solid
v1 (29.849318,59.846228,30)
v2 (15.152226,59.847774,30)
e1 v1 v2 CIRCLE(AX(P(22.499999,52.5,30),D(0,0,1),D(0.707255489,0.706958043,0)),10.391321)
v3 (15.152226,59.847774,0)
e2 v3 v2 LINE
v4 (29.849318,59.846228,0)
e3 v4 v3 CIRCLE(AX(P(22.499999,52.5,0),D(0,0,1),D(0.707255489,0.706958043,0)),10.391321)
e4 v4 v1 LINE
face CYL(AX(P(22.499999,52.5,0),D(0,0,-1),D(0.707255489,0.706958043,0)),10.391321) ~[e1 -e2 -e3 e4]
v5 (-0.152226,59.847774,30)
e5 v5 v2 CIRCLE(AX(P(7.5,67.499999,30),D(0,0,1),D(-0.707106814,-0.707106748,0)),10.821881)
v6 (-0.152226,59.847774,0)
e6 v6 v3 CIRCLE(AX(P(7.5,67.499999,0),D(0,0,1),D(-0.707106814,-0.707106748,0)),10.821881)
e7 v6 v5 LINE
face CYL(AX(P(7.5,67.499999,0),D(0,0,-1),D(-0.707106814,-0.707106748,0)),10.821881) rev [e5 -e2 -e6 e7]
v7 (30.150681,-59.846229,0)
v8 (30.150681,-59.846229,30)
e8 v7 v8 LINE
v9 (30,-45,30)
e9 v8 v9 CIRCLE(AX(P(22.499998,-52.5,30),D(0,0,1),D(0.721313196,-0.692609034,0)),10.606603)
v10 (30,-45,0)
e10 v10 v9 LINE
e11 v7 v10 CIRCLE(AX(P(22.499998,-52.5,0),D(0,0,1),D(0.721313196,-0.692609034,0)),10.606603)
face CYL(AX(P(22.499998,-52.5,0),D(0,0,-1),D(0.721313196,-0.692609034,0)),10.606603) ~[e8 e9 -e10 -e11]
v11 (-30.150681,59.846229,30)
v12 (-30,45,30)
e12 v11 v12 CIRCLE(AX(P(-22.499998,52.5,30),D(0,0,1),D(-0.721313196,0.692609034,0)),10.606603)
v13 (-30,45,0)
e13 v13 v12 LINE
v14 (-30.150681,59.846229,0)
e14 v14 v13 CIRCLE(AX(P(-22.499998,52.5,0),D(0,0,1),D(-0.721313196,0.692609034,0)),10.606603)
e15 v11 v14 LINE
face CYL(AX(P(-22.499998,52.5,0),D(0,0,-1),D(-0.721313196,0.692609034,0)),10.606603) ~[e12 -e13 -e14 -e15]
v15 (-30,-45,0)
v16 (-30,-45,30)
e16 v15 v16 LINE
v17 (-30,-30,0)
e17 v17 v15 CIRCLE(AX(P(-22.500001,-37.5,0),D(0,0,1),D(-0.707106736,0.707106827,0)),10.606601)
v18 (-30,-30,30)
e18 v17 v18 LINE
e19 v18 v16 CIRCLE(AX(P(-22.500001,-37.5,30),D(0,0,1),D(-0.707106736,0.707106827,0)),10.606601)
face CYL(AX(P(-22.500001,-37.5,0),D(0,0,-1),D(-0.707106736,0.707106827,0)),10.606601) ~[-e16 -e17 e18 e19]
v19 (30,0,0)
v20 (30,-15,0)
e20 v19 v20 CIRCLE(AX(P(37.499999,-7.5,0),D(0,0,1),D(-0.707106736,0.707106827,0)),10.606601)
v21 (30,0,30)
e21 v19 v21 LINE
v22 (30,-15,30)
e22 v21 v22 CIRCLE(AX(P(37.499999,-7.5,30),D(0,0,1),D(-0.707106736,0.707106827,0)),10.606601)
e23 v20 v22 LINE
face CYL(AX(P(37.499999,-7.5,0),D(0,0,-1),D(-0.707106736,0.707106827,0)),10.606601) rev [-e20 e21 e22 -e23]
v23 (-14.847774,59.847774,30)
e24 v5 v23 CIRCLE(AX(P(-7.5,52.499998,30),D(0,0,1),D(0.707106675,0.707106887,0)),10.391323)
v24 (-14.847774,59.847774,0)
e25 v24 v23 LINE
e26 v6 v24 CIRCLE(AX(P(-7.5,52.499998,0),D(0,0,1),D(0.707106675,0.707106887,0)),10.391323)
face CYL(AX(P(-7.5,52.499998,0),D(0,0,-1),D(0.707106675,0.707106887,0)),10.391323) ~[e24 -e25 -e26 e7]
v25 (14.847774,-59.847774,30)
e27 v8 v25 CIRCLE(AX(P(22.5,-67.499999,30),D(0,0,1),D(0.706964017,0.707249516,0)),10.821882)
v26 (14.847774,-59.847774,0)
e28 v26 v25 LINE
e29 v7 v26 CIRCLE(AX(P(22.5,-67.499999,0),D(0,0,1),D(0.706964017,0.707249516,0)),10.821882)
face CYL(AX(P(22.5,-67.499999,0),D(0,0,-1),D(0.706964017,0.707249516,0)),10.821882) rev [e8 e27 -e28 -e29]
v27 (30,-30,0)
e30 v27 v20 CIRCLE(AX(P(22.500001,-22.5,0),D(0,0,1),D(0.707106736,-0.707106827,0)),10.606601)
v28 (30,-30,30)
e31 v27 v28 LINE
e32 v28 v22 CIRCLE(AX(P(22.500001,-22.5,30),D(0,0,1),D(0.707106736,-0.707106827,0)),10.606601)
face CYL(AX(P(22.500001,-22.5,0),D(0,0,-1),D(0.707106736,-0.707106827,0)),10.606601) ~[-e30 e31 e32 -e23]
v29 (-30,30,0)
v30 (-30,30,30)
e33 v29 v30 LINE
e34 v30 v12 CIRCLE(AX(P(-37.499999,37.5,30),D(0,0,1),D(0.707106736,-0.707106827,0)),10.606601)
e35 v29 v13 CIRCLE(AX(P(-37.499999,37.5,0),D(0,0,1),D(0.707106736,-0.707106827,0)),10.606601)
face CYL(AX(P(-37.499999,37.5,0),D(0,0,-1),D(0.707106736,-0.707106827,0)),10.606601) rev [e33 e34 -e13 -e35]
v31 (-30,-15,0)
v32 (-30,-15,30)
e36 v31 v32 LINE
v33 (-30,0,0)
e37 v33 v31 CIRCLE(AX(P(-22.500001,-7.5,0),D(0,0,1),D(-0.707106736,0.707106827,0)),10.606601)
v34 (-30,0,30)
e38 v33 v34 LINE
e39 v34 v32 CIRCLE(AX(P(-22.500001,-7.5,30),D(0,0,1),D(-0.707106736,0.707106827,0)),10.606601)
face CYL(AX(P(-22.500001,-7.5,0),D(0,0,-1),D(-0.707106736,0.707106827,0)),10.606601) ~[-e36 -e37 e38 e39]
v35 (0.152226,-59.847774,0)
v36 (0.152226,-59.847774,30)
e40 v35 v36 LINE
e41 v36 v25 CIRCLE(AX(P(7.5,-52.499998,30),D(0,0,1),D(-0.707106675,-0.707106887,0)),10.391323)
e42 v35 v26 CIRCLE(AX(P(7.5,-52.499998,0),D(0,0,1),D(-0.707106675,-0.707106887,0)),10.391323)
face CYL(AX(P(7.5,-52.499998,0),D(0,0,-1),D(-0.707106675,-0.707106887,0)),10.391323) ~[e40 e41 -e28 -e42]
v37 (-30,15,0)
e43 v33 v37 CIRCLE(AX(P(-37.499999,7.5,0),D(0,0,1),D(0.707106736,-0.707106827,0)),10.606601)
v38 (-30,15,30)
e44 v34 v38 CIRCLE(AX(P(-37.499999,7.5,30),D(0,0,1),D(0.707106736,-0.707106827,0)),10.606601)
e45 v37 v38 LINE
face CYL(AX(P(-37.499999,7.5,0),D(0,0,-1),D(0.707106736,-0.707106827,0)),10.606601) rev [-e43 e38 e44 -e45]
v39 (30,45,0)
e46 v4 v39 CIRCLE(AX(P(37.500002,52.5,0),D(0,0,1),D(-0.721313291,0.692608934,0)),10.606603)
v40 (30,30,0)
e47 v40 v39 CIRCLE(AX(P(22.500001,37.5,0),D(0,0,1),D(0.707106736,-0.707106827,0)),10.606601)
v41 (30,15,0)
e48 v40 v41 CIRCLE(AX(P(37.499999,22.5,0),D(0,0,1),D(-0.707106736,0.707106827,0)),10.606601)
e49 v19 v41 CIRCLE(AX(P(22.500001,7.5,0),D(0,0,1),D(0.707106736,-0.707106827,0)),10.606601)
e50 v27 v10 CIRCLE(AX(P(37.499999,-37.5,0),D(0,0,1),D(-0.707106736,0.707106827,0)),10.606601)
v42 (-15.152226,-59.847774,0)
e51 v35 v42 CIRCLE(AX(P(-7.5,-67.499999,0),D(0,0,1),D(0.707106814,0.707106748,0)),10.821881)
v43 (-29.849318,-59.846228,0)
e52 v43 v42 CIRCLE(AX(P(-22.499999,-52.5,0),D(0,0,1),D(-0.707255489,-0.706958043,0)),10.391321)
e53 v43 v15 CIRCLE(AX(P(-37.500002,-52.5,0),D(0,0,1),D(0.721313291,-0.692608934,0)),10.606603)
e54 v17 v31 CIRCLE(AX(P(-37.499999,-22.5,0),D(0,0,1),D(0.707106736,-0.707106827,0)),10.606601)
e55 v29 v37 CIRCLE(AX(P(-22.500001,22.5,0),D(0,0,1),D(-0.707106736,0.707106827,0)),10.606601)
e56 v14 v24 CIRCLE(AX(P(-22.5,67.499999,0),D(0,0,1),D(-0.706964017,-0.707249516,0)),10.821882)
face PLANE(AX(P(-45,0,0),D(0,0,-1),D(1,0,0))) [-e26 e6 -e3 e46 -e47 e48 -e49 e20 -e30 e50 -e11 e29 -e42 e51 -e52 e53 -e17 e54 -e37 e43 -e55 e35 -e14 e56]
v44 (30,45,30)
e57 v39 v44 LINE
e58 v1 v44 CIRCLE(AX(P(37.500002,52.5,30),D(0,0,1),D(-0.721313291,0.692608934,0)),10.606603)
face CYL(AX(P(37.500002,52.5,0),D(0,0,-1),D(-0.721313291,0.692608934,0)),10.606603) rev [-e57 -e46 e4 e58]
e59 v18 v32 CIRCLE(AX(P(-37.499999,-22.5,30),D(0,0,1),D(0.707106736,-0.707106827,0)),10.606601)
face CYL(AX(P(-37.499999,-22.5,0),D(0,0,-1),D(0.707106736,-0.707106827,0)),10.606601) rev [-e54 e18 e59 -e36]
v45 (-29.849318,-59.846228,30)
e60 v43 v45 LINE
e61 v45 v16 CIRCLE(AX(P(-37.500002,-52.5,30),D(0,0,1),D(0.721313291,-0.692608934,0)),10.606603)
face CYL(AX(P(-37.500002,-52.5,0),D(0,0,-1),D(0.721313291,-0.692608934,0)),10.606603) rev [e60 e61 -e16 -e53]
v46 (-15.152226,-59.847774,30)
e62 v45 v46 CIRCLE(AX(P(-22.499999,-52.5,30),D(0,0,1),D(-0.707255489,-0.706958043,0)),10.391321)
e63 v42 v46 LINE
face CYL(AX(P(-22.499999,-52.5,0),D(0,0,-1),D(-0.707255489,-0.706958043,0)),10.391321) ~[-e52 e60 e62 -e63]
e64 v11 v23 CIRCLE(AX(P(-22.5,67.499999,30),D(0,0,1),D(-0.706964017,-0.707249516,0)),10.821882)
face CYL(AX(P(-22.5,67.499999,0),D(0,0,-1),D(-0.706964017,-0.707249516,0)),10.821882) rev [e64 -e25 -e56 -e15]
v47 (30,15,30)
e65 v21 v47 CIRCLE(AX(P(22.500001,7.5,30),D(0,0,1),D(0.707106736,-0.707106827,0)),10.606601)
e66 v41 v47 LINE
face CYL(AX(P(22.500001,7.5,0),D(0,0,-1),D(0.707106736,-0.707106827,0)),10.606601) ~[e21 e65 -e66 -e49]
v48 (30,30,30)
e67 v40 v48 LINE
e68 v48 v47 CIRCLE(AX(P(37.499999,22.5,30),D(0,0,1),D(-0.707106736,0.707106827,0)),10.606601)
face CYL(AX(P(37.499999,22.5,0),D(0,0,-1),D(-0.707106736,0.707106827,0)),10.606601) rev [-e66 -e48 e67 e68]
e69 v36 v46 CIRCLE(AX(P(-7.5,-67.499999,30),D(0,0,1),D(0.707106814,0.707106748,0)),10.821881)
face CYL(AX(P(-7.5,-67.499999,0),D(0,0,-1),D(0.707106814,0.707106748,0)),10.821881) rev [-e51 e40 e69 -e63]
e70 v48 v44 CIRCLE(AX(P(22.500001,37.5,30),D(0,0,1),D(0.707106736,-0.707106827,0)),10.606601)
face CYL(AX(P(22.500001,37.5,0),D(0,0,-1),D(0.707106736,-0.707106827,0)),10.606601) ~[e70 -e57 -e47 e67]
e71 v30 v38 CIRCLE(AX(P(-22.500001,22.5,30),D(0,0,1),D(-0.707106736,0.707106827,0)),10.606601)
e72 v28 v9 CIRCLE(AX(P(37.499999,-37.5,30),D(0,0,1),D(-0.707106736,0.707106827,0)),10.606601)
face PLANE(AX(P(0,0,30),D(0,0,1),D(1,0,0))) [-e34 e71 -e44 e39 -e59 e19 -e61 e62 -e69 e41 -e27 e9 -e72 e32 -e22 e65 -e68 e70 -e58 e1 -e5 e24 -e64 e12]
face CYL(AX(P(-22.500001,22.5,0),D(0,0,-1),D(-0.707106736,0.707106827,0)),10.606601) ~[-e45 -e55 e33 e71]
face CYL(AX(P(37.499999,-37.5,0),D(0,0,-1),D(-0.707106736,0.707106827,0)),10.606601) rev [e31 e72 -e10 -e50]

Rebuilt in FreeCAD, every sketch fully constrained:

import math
import FreeCAD as App
import Part
import Sketcher
from FreeCAD import Vector


def add_polygon(sketch, points):
    """Adds a closed chain of lines whose ends are joined by coincident constraints."""
    first, n = sketch.GeometryCount, len(points)
    for a, b in zip(points, points[1:] + points[:1]):
        sketch.addGeometry(Part.LineSegment(App.Vector(*a, 0), App.Vector(*b, 0)), False)
    for i in range(n):
        sketch.addConstraint(Sketcher.Constraint("Coincident", first + i, 2, first + (i + 1) % n, 1))

doc = App.newDocument("Part")
body = doc.addObject("PartDesign::Body", "Body")

# Sketch on XZ plane
sketch1 = body.newObject("Sketcher::SketchObject", "Sketch")
sketch1.AttachmentSupport = (doc.getObject("XZ_Plane"), [""])
sketch1.MapMode = "FlatFace"
add_polygon(sketch1, [(-45, 2.6), (-45, 0), (45, 0), (45, 2.6)])  # lines 0-3
sketch1.addConstraint([
    Sketcher.Constraint("Vertical", 0),
    Sketcher.Constraint("Horizontal", 1),
    Sketcher.Constraint("Vertical", 2),
    Sketcher.Constraint("Horizontal", 3),
    Sketcher.Constraint("Symmetric", 0, 2, 1, 2, -1, 1),
    Sketcher.Constraint("DistanceX", 1, 1, 1, 2, 90.0),
    Sketcher.Constraint("DistanceY", 0, 2, 0, 1, 2.6),
])
pad1 = body.newObject("PartDesign::Pad", "Pad")
pad1.Profile = sketch1
pad1.Length = 130
pad1.Midplane = True

# Sketch on XY plane
sketch2 = body.newObject("Sketcher::SketchObject", "Sketch001")
sketch2.AttachmentSupport = (doc.getObject("XY_Plane"), [""])
sketch2.MapMode = "FlatFace"
sketch2.addGeometry([
    Part.ArcOfCircle(Part.Circle(Vector(-22, 68, 0), Vector(0, 0, 1), 12), math.radians(-128), math.radians(-52)),  # 0
    Part.ArcOfCircle(Part.Circle(Vector(-23, 52, 0), Vector(0, 0, 1), 9), math.radians(144), math.radians(216)),  # 1
    Part.ArcOfCircle(Part.Circle(Vector(-22, 37, 0), Vector(0, 0, 1), 12), math.radians(52), math.radians(128)),  # 2
    Part.ArcOfCircle(Part.Circle(Vector(-22, 52, 0), Vector(0, 0, 1), 9), math.radians(-36), math.radians(36)),  # 3
    Part.ArcOfCircle(Part.Circle(Vector(-8, 53, 0), Vector(0, 0, 1), 9), math.radians(54), math.radians(126)),  # 4
    Part.ArcOfCircle(Part.Circle(Vector(-23, 52, 0), Vector(0, 0, 1), 12), math.radians(-38), math.radians(38)),  # 5
    Part.ArcOfCircle(Part.Circle(Vector(-8, 52, 0), Vector(0, 0, 1), 9), math.radians(-126), math.radians(-54)),  # 6
    Part.ArcOfCircle(Part.Circle(Vector(8, 52, 0), Vector(0, 0, 1), 12), math.radians(142), math.radians(218)),  # 7
    Part.ArcOfCircle(Part.Circle(Vector(-22, 38, 0), Vector(0, 0, 1), 9), math.radians(54), math.radians(126)),  # 8
    Part.ArcOfCircle(Part.Circle(Vector(-38, 38, 0), Vector(0, 0, 1), 12), math.radians(-38), math.radians(38)),  # 9
    Part.ArcOfCircle(Part.Circle(Vector(-22, 37, 0), Vector(0, 0, 1), 9), math.radians(-126), math.radians(-54)),  # 10
    Part.ArcOfCircle(Part.Circle(Vector(-7, 38, 0), Vector(0, 0, 1), 12), math.radians(142), math.radians(218)),  # 11
    Part.ArcOfCircle(Part.Circle(Vector(-8, 38, 0), Vector(0, 0, 1), 9), math.radians(144), math.radians(216)),  # 12
    Part.ArcOfCircle(Part.Circle(Vector(-8, 22, 0), Vector(0, 0, 1), 12), math.radians(52), math.radians(128)),  # 13
    Part.ArcOfCircle(Part.Circle(Vector(-7, 38, 0), Vector(0, 0, 1), 9), math.radians(-36), math.radians(36)),  # 14
    Part.ArcOfCircle(Part.Circle(Vector(-8, 53, 0), Vector(0, 0, 1), 12), math.radians(-128), math.radians(-52)),  # 15
], False)
sketch2.addConstraint([
    Sketcher.Constraint("Coincident", 0, 1, 1, 1),
    Sketcher.Constraint("Coincident", 1, 2, 2, 2),
    Sketcher.Constraint("Coincident", 2, 1, 3, 1),
    Sketcher.Constraint("Coincident", 3, 2, 0, 2),
    Sketcher.Constraint("Coincident", 4, 2, 5, 2),
    Sketcher.Constraint("Coincident", 5, 1, 6, 1),
    Sketcher.Constraint("Coincident", 6, 2, 7, 2),
    Sketcher.Constraint("Coincident", 7, 1, 4, 1),
    Sketcher.Constraint("Coincident", 8, 2, 9, 2),
    Sketcher.Constraint("Coincident", 9, 1, 10, 1),
    Sketcher.Constraint("Coincident", 10, 2, 11, 2),
    Sketcher.Constraint("Coincident", 11, 1, 8, 1),
    Sketcher.Constraint("Coincident", 12, 2, 13, 2),
    Sketcher.Constraint("Coincident", 13, 1, 14, 1),
    Sketcher.Constraint("Coincident", 14, 2, 15, 2),
    Sketcher.Constraint("Coincident", 15, 1, 12, 1),
    Sketcher.Constraint("Coincident", 3, 3, 1, 3),
    Sketcher.Constraint("Coincident", 5, 3, 1, 3),
    Sketcher.Constraint("Coincident", 6, 3, 4, 3),
    Sketcher.Constraint("Coincident", 8, 3, 2, 3),
    Sketcher.Constraint("Coincident", 10, 3, 2, 3),
    Sketcher.Constraint("Coincident", 12, 3, 11, 3),
    Sketcher.Constraint("Coincident", 14, 3, 11, 3),
    Sketcher.Constraint("Coincident", 15, 3, 4, 3),
    Sketcher.Constraint("Equal", 0, 2),
    Sketcher.Constraint("Equal", 1, 3),
    Sketcher.Constraint("Equal", 3, 4),
    Sketcher.Constraint("Equal", 2, 5),
    Sketcher.Constraint("Equal", 4, 6),
    Sketcher.Constraint("Equal", 5, 7),
    Sketcher.Constraint("Equal", 6, 8),
    Sketcher.Constraint("Equal", 7, 9),
    Sketcher.Constraint("Equal", 8, 10),
    Sketcher.Constraint("Equal", 9, 11),
    Sketcher.Constraint("Equal", 10, 12),
    Sketcher.Constraint("Equal", 11, 13),
    Sketcher.Constraint("Equal", 12, 14),
    Sketcher.Constraint("Equal", 13, 15),
    Sketcher.Constraint("Symmetric", 4, 3, 7, 3, -2),
    Sketcher.Constraint("PointOnObject", 13, 1, -2),
    Sketcher.Constraint("PointOnObject", 14, 2, -2),
    Sketcher.Constraint("Horizontal", 3, 3, 4, 3),
    Sketcher.Constraint("Horizontal", 8, 3, 9, 3),
    Sketcher.Constraint("Horizontal", 10, 3, 11, 3),
    Sketcher.Constraint("Horizontal", 1, 2, 2, 1),
    Sketcher.Constraint("Horizontal", 0, 1, 3, 2),
    Sketcher.Constraint("Horizontal", 5, 1, 6, 2),
    Sketcher.Constraint("Horizontal", 6, 2, 8, 2),
    Sketcher.Constraint("Horizontal", 9, 1, 10, 2),
    Sketcher.Constraint("Horizontal", 12, 2, 13, 1),
    Sketcher.Constraint("Vertical", 6, 3, 11, 3),
    Sketcher.Constraint("Vertical", 0, 1, 1, 2),
    Sketcher.Constraint("DistanceX", 0, 1, -1, 1, 30.0),
    Sketcher.Constraint("DistanceY", -1, 1, 4, 2, 60.0),
    Sketcher.Constraint("Radius", 1, 9.229312),
])
pocket1 = body.newObject("PartDesign::Pocket", "Pocket")
pocket1.Profile = sketch2
pocket1.Type = "ThroughAll"
pocket1.Midplane = True

# Sketch on XY plane
sketch3 = body.newObject("Sketcher::SketchObject", "Sketch002")
sketch3.AttachmentSupport = (doc.getObject("XY_Plane"), [""])
sketch3.MapMode = "FlatFace"
sketch3.addGeometry([
    Part.ArcOfCircle(Part.Circle(Vector(8, 68, 0), Vector(0, 0, 1), 12), math.radians(-128), math.radians(-52)),  # 0
    Part.ArcOfCircle(Part.Circle(Vector(7, 52, 0), Vector(0, 0, 1), 9), math.radians(144), math.radians(216)),  # 1
    Part.ArcOfCircle(Part.Circle(Vector(8, 37, 0), Vector(0, 0, 1), 12), math.radians(52), math.radians(128)),  # 2
    Part.ArcOfCircle(Part.Circle(Vector(8, 52, 0), Vector(0, 0, 1), 9), math.radians(-36), math.radians(36)),  # 3
    Part.ArcOfCircle(Part.Circle(Vector(22, 53, 0), Vector(0, 0, 1), 9), math.radians(54), math.radians(126)),  # 4
    Part.ArcOfCircle(Part.Circle(Vector(7, 52, 0), Vector(0, 0, 1), 12), math.radians(-38), math.radians(38)),  # 5
    Part.ArcOfCircle(Part.Circle(Vector(22, 52, 0), Vector(0, 0, 1), 9), math.radians(-126), math.radians(-54)),  # 6
    Part.ArcOfCircle(Part.Circle(Vector(38, 52, 0), Vector(0, 0, 1), 12), math.radians(142), math.radians(218)),  # 7
    Part.ArcOfCircle(Part.Circle(Vector(8, 38, 0), Vector(0, 0, 1), 9), math.radians(54), math.radians(126)),  # 8
    Part.ArcOfCircle(Part.Circle(Vector(-8, 38, 0), Vector(0, 0, 1), 12), math.radians(-38), math.radians(38)),  # 9
    Part.ArcOfCircle(Part.Circle(Vector(8, 37, 0), Vector(0, 0, 1), 9), math.radians(-126), math.radians(-54)),  # 10
    Part.ArcOfCircle(Part.Circle(Vector(23, 38, 0), Vector(0, 0, 1), 12), math.radians(142), math.radians(218)),  # 11
    Part.ArcOfCircle(Part.Circle(Vector(22, 38, 0), Vector(0, 0, 1), 9), math.radians(144), math.radians(216)),  # 12
    Part.ArcOfCircle(Part.Circle(Vector(22, 22, 0), Vector(0, 0, 1), 12), math.radians(52), math.radians(128)),  # 13
    Part.ArcOfCircle(Part.Circle(Vector(23, 38, 0), Vector(0, 0, 1), 9), math.radians(-36), math.radians(36)),  # 14
    Part.ArcOfCircle(Part.Circle(Vector(22, 53, 0), Vector(0, 0, 1), 12), math.radians(-128), math.radians(-52)),  # 15
], False)
sketch3.addConstraint([
    Sketcher.Constraint("Coincident", 0, 1, 1, 1),
    Sketcher.Constraint("Coincident", 1, 2, 2, 2),
    Sketcher.Constraint("Coincident", 2, 1, 3, 1),
    Sketcher.Constraint("Coincident", 3, 2, 0, 2),
    Sketcher.Constraint("Coincident", 4, 2, 5, 2),
    Sketcher.Constraint("Coincident", 5, 1, 6, 1),
    Sketcher.Constraint("Coincident", 6, 2, 7, 2),
    Sketcher.Constraint("Coincident", 7, 1, 4, 1),
    Sketcher.Constraint("Coincident", 8, 2, 9, 2),
    Sketcher.Constraint("Coincident", 9, 1, 10, 1),
    Sketcher.Constraint("Coincident", 10, 2, 11, 2),
    Sketcher.Constraint("Coincident", 11, 1, 8, 1),
    Sketcher.Constraint("Coincident", 12, 2, 13, 2),
    Sketcher.Constraint("Coincident", 13, 1, 14, 1),
    Sketcher.Constraint("Coincident", 14, 2, 15, 2),
    Sketcher.Constraint("Coincident", 15, 1, 12, 1),
    Sketcher.Constraint("Coincident", 3, 3, 1, 3),
    Sketcher.Constraint("Coincident", 5, 3, 1, 3),
    Sketcher.Constraint("Coincident", 6, 3, 4, 3),
    Sketcher.Constraint("Coincident", 8, 3, 2, 3),
    Sketcher.Constraint("Coincident", 10, 3, 2, 3),
    Sketcher.Constraint("Coincident", 12, 3, 11, 3),
    Sketcher.Constraint("Coincident", 14, 3, 11, 3),
    Sketcher.Constraint("Coincident", 15, 3, 4, 3),
    Sketcher.Constraint("Equal", 0, 2),
    Sketcher.Constraint("Equal", 1, 3),
    Sketcher.Constraint("Equal", 3, 4),
    Sketcher.Constraint("Equal", 2, 5),
    Sketcher.Constraint("Equal", 4, 6),
    Sketcher.Constraint("Equal", 5, 7),
    Sketcher.Constraint("Equal", 6, 8),
    Sketcher.Constraint("Equal", 7, 9),
    Sketcher.Constraint("Equal", 8, 10),
    Sketcher.Constraint("Equal", 9, 11),
    Sketcher.Constraint("Equal", 10, 12),
    Sketcher.Constraint("Equal", 11, 13),
    Sketcher.Constraint("Equal", 12, 14),
    Sketcher.Constraint("Equal", 13, 15),
    Sketcher.Constraint("Symmetric", 2, 3, 9, 3, -2),
    Sketcher.Constraint("PointOnObject", 0, 1, -2),
    Sketcher.Constraint("PointOnObject", 1, 2, -2),
    Sketcher.Constraint("Horizontal", 3, 3, 4, 3),
    Sketcher.Constraint("Horizontal", 6, 3, 7, 3),
    Sketcher.Constraint("Horizontal", 10, 3, 11, 3),
    Sketcher.Constraint("Horizontal", 1, 2, 2, 1),
    Sketcher.Constraint("Horizontal", 0, 1, 3, 2),
    Sketcher.Constraint("Horizontal", 5, 1, 6, 2),
    Sketcher.Constraint("Horizontal", 6, 2, 8, 2),
    Sketcher.Constraint("Horizontal", 9, 1, 10, 2),
    Sketcher.Constraint("Horizontal", 12, 2, 13, 1),
    Sketcher.Constraint("Horizontal", 14, 2, 15, 1),
    Sketcher.Constraint("Vertical", 3, 2, 12, 2),
    Sketcher.Constraint("DistanceX", -1, 1, 2, 1, 15.0),
    Sketcher.Constraint("DistanceY", -1, 1, 4, 2, 60.0),
    Sketcher.Constraint("Radius", 1, 9.229312),
])
pocket2 = body.newObject("PartDesign::Pocket", "Pocket001")
pocket2.Profile = sketch3
pocket2.Type = "ThroughAll"
pocket2.Midplane = True
doc.recompute()

linearpattern = body.newObject("PartDesign::LinearPattern", "LinearPattern")
linearpattern.Originals = [pocket1, pocket2]
linearpattern.Direction = (doc.getObject("Y_Axis"), [""])
linearpattern.Mode = "offset"
linearpattern.Offset = 30
linearpattern.Occurrences = 4
linearpattern.Reversed = True
body.Tip = linearpattern

# Sketch on XY plane
sketch4 = body.newObject("Sketcher::SketchObject", "Sketch003")
sketch4.AttachmentSupport = (doc.getObject("XY_Plane"), [""])
sketch4.MapMode = "FlatFace"
add_polygon(sketch4, [(-60, 88), (-60, -88), (60, -88), (60, 88)])  # lines 0-3
sketch4.addGeometry(Part.ArcOfCircle(Part.Circle(Vector(-22, 53, 0), Vector(0, 0, 1), 11), math.radians(136), math.radians(225)), False)  # 4
sketch4.addGeometry(Part.ArcOfCircle(Part.Circle(Vector(-23, 67, 0), Vector(0, 0, 1), 11), math.radians(-135), math.radians(-45)), False)  # 5
sketch4.addGeometry(Part.ArcOfCircle(Part.Circle(Vector(-8, 52, 0), Vector(0, 0, 1), 10), math.radians(45), math.radians(135)), False)  # 6
sketch4.addGeometry(Part.ArcOfCircle(Part.Circle(Vector(8, 67, 0), Vector(0, 0, 1), 11), math.radians(-135), math.radians(-45)), False)  # 7
sketch4.addGeometry(Part.ArcOfCircle(Part.Circle(Vector(22, 53, 0), Vector(0, 0, 1), 10), math.radians(45), math.radians(135)), False)  # 8
sketch4.addGeometry(Part.ArcOfCircle(Part.Circle(Vector(38, 53, 0), Vector(0, 0, 1), 11), math.radians(136), math.radians(225)), False)  # 9
sketch4.addGeometry(Part.ArcOfCircle(Part.Circle(Vector(23, 38, 0), Vector(0, 0, 1), 11), math.radians(-45), math.radians(45)), False)  # 10
sketch4.addGeometry(Part.ArcOfCircle(Part.Circle(Vector(37, 22, 0), Vector(0, 0, 1), 11), math.radians(135), math.radians(225)), False)  # 11
sketch4.addGeometry(Part.ArcOfCircle(Part.Circle(Vector(23, 8, 0), Vector(0, 0, 1), 11), math.radians(-45), math.radians(45)), False)  # 12
sketch4.addGeometry(Part.ArcOfCircle(Part.Circle(Vector(37, -8, 0), Vector(0, 0, 1), 11), math.radians(135), math.radians(225)), False)  # 13
sketch4.addGeometry(Part.ArcOfCircle(Part.Circle(Vector(23, -22, 0), Vector(0, 0, 1), 11), math.radians(-45), math.radians(45)), False)  # 14
sketch4.addGeometry(Part.ArcOfCircle(Part.Circle(Vector(37, -38, 0), Vector(0, 0, 1), 11), math.radians(135), math.radians(225)), False)  # 15
sketch4.addGeometry(Part.ArcOfCircle(Part.Circle(Vector(22, -53, 0), Vector(0, 0, 1), 11), math.radians(-44), math.radians(45)), False)  # 16
sketch4.addGeometry(Part.ArcOfCircle(Part.Circle(Vector(23, -67, 0), Vector(0, 0, 1), 11), math.radians(45), math.radians(135)), False)  # 17
sketch4.addGeometry(Part.ArcOfCircle(Part.Circle(Vector(8, -52, 0), Vector(0, 0, 1), 10), math.radians(-135), math.radians(-45)), False)  # 18
sketch4.addGeometry(Part.ArcOfCircle(Part.Circle(Vector(-8, -67, 0), Vector(0, 0, 1), 11), math.radians(45), math.radians(135)), False)  # 19
sketch4.addGeometry(Part.ArcOfCircle(Part.Circle(Vector(-22, -53, 0), Vector(0, 0, 1), 10), math.radians(-135), math.radians(-45)), False)  # 20
sketch4.addGeometry(Part.ArcOfCircle(Part.Circle(Vector(-38, -53, 0), Vector(0, 0, 1), 11), math.radians(-44), math.radians(45)), False)  # 21
sketch4.addGeometry(Part.ArcOfCircle(Part.Circle(Vector(-23, -38, 0), Vector(0, 0, 1), 11), math.radians(135), math.radians(225)), False)  # 22
sketch4.addGeometry(Part.ArcOfCircle(Part.Circle(Vector(-37, -22, 0), Vector(0, 0, 1), 11), math.radians(-45), math.radians(45)), False)  # 23
sketch4.addGeometry(Part.ArcOfCircle(Part.Circle(Vector(-23, -8, 0), Vector(0, 0, 1), 11), math.radians(135), math.radians(225)), False)  # 24
sketch4.addGeometry(Part.ArcOfCircle(Part.Circle(Vector(-37, 8, 0), Vector(0, 0, 1), 11), math.radians(-45), math.radians(45)), False)  # 25
sketch4.addGeometry(Part.ArcOfCircle(Part.Circle(Vector(-23, 22, 0), Vector(0, 0, 1), 11), math.radians(135), math.radians(225)), False)  # 26
sketch4.addGeometry(Part.ArcOfCircle(Part.Circle(Vector(-37, 38, 0), Vector(0, 0, 1), 11), math.radians(-45), math.radians(45)), False)  # 27
sketch4.addConstraint([
    Sketcher.Constraint("Coincident", 4, 1, 5, 1),
    Sketcher.Constraint("Tangent", 5, 2, 6, 2),
    Sketcher.Constraint("Tangent", 6, 1, 7, 1),
    Sketcher.Constraint("Tangent", 7, 2, 8, 2),
    Sketcher.Constraint("Coincident", 8, 1, 9, 1),
    Sketcher.Constraint("Tangent", 9, 2, 10, 2),
    Sketcher.Constraint("Tangent", 10, 1, 11, 1),
    Sketcher.Constraint("Tangent", 11, 2, 12, 2),
    Sketcher.Constraint("Tangent", 12, 1, 13, 1),
    Sketcher.Constraint("Tangent", 13, 2, 14, 2),
    Sketcher.Constraint("Tangent", 14, 1, 15, 1),
    Sketcher.Constraint("Tangent", 15, 2, 16, 2),
    Sketcher.Constraint("Coincident", 16, 1, 17, 1),
    Sketcher.Constraint("Tangent", 17, 2, 18, 2),
    Sketcher.Constraint("Tangent", 18, 1, 19, 1),
    Sketcher.Constraint("Tangent", 19, 2, 20, 2),
    Sketcher.Constraint("Coincident", 20, 1, 21, 1),
    Sketcher.Constraint("Tangent", 21, 2, 22, 2),
    Sketcher.Constraint("Tangent", 22, 1, 23, 1),
    Sketcher.Constraint("Tangent", 23, 2, 24, 2),
    Sketcher.Constraint("Tangent", 24, 1, 25, 1),
    Sketcher.Constraint("Tangent", 25, 2, 26, 2),
    Sketcher.Constraint("Tangent", 26, 1, 27, 1),
    Sketcher.Constraint("Tangent", 27, 2, 4, 2),
    Sketcher.Constraint("Vertical", 0),
    Sketcher.Constraint("Horizontal", 1),
    Sketcher.Constraint("Vertical", 2),
    Sketcher.Constraint("Horizontal", 3),
    Sketcher.Constraint("Equal", 5, 7),
    Sketcher.Constraint("Equal", 4, 9),
    Sketcher.Constraint("Equal", 9, 10),
    Sketcher.Constraint("Equal", 10, 11),
    Sketcher.Constraint("Equal", 11, 12),
    Sketcher.Constraint("Equal", 12, 13),
    Sketcher.Constraint("Equal", 13, 14),
    Sketcher.Constraint("Equal", 14, 15),
    Sketcher.Constraint("Equal", 15, 16),
    Sketcher.Constraint("Equal", 7, 17),
    Sketcher.Constraint("Equal", 6, 18),
    Sketcher.Constraint("Equal", 17, 19),
    Sketcher.Constraint("Equal", 8, 20),
    Sketcher.Constraint("Equal", 16, 21),
    Sketcher.Constraint("Equal", 21, 22),
    Sketcher.Constraint("Equal", 22, 23),
    Sketcher.Constraint("Equal", 23, 24),
    Sketcher.Constraint("Equal", 24, 25),
    Sketcher.Constraint("Equal", 25, 26),
    Sketcher.Constraint("Equal", 26, 27),
    Sketcher.Constraint("Symmetric", 4, 3, 16, 3, -1, 1),
    Sketcher.Constraint("Symmetric", 5, 3, 17, 3, -1, 1),
    Sketcher.Constraint("Symmetric", 7, 3, 19, 3, -1, 1),
    Sketcher.Constraint("Symmetric", 9, 3, 21, 3, -1, 1),
    Sketcher.Constraint("Symmetric", 11, 3, 23, 3, -1, 1),
    Sketcher.Constraint("Symmetric", 13, 3, 25, 3, -1, 1),
    Sketcher.Constraint("Symmetric", 0, 2, 2, 2, -1, 1),
    Sketcher.Constraint("Symmetric", 4, 3, 8, 3, -2),
    Sketcher.Constraint("Symmetric", 15, 2, 21, 2, -2),
    Sketcher.Constraint("Symmetric", 14, 1, 22, 1, -2),
    Sketcher.Constraint("Symmetric", 13, 2, 23, 2, -2),
    Sketcher.Constraint("PointOnObject", 12, 1, -1),
    Sketcher.Constraint("Horizontal", 5, 3, 7, 3),
    Sketcher.Constraint("Horizontal", 16, 3, 20, 3),
    Sketcher.Constraint("Horizontal", 11, 3, 26, 3),
    Sketcher.Constraint("Horizontal", 6, 1, 7, 2),
    Sketcher.Constraint("Horizontal", 4, 1, 8, 1),
    Sketcher.Constraint("Vertical", 4, 3, 5, 3),
    Sketcher.Constraint("Vertical", 7, 3, 18, 3),
    Sketcher.Constraint("DistanceX", 1, 1, 1, 2, 120.0),
    Sketcher.Constraint("DistanceY", 0, 2, 0, 1, 175.0),
    Sketcher.Constraint("DistanceX", -1, 1, 9, 2, 30.0),
    Sketcher.Constraint("DistanceY", -1, 1, 9, 2, 45.0),
    Sketcher.Constraint("DistanceY", 4, 3, 5, 3, 14.999999),
    Sketcher.Constraint("Radius", 5, 10.821882),
])
pocket3 = body.newObject("PartDesign::Pocket", "Pocket002")
pocket3.Profile = sketch4
pocket3.Type = "ThroughAll"
pocket3.Reversed = True

# Sketch on XY plane
sketch5 = body.newObject("Sketcher::SketchObject", "Sketch004")
sketch5.AttachmentSupport = (doc.getObject("XY_Plane"), [""])
sketch5.MapMode = "FlatFace"
sketch5.addGeometry([
    Part.ArcOfCircle(Part.Circle(Vector(-22, 53, 0), Vector(0, 0, 1), 11), math.radians(136), math.radians(225)),  # 0
    Part.ArcOfCircle(Part.Circle(Vector(-37, 38, 0), Vector(0, 0, 1), 11), math.radians(-45), math.radians(45)),  # 1
    Part.ArcOfCircle(Part.Circle(Vector(-23, 22, 0), Vector(0, 0, 1), 11), math.radians(135), math.radians(225)),  # 2
    Part.ArcOfCircle(Part.Circle(Vector(-37, 8, 0), Vector(0, 0, 1), 11), math.radians(-45), math.radians(45)),  # 3
    Part.ArcOfCircle(Part.Circle(Vector(-23, -8, 0), Vector(0, 0, 1), 11), math.radians(135), math.radians(225)),  # 4
    Part.ArcOfCircle(Part.Circle(Vector(-37, -22, 0), Vector(0, 0, 1), 11), math.radians(-45), math.radians(45)),  # 5
    Part.ArcOfCircle(Part.Circle(Vector(-23, -38, 0), Vector(0, 0, 1), 11), math.radians(135), math.radians(225)),  # 6
    Part.ArcOfCircle(Part.Circle(Vector(-38, -53, 0), Vector(0, 0, 1), 11), math.radians(-44), math.radians(45)),  # 7
    Part.ArcOfCircle(Part.Circle(Vector(-22, -53, 0), Vector(0, 0, 1), 10), math.radians(-135), math.radians(-45)),  # 8
    Part.ArcOfCircle(Part.Circle(Vector(-8, -67, 0), Vector(0, 0, 1), 11), math.radians(45), math.radians(135)),  # 9
    Part.ArcOfCircle(Part.Circle(Vector(8, -52, 0), Vector(0, 0, 1), 10), math.radians(-135), math.radians(-45)),  # 10
    Part.ArcOfCircle(Part.Circle(Vector(23, -67, 0), Vector(0, 0, 1), 11), math.radians(45), math.radians(135)),  # 11
    Part.ArcOfCircle(Part.Circle(Vector(22, -53, 0), Vector(0, 0, 1), 11), math.radians(-44), math.radians(45)),  # 12
    Part.ArcOfCircle(Part.Circle(Vector(37, -38, 0), Vector(0, 0, 1), 11), math.radians(135), math.radians(225)),  # 13
    Part.ArcOfCircle(Part.Circle(Vector(23, -22, 0), Vector(0, 0, 1), 11), math.radians(-45), math.radians(45)),  # 14
    Part.ArcOfCircle(Part.Circle(Vector(37, -8, 0), Vector(0, 0, 1), 11), math.radians(135), math.radians(225)),  # 15
    Part.ArcOfCircle(Part.Circle(Vector(23, 8, 0), Vector(0, 0, 1), 11), math.radians(-45), math.radians(45)),  # 16
    Part.ArcOfCircle(Part.Circle(Vector(37, 22, 0), Vector(0, 0, 1), 11), math.radians(135), math.radians(225)),  # 17
    Part.ArcOfCircle(Part.Circle(Vector(23, 38, 0), Vector(0, 0, 1), 11), math.radians(-45), math.radians(45)),  # 18
    Part.ArcOfCircle(Part.Circle(Vector(38, 53, 0), Vector(0, 0, 1), 11), math.radians(136), math.radians(225)),  # 19
    Part.ArcOfCircle(Part.Circle(Vector(22, 53, 0), Vector(0, 0, 1), 10), math.radians(45), math.radians(135)),  # 20
    Part.ArcOfCircle(Part.Circle(Vector(8, 67, 0), Vector(0, 0, 1), 11), math.radians(-135), math.radians(-45)),  # 21
    Part.ArcOfCircle(Part.Circle(Vector(-8, 52, 0), Vector(0, 0, 1), 10), math.radians(45), math.radians(135)),  # 22
    Part.ArcOfCircle(Part.Circle(Vector(-23, 67, 0), Vector(0, 0, 1), 11), math.radians(-135), math.radians(-45)),  # 23
], False)
sketch5.addConstraint([
    Sketcher.Constraint("Tangent", 0, 2, 1, 2),
    Sketcher.Constraint("Tangent", 1, 1, 2, 1),
    Sketcher.Constraint("Tangent", 2, 2, 3, 2),
    Sketcher.Constraint("Tangent", 3, 1, 4, 1),
    Sketcher.Constraint("Tangent", 4, 2, 5, 2),
    Sketcher.Constraint("Tangent", 5, 1, 6, 1),
    Sketcher.Constraint("Tangent", 6, 2, 7, 2),
    Sketcher.Constraint("Coincident", 7, 1, 8, 1),
    Sketcher.Constraint("Tangent", 8, 2, 9, 2),
    Sketcher.Constraint("Tangent", 9, 1, 10, 1),
    Sketcher.Constraint("Tangent", 10, 2, 11, 2),
    Sketcher.Constraint("Coincident", 11, 1, 12, 1),
    Sketcher.Constraint("Tangent", 12, 2, 13, 2),
    Sketcher.Constraint("Tangent", 13, 1, 14, 1),
    Sketcher.Constraint("Tangent", 14, 2, 15, 2),
    Sketcher.Constraint("Tangent", 15, 1, 16, 1),
    Sketcher.Constraint("Tangent", 16, 2, 17, 2),
    Sketcher.Constraint("Tangent", 17, 1, 18, 1),
    Sketcher.Constraint("Tangent", 18, 2, 19, 2),
    Sketcher.Constraint("Coincident", 19, 1, 20, 1),
    Sketcher.Constraint("Tangent", 20, 2, 21, 2),
    Sketcher.Constraint("Tangent", 21, 1, 22, 1),
    Sketcher.Constraint("Tangent", 22, 2, 23, 2),
    Sketcher.Constraint("Coincident", 23, 1, 0, 1),
    Sketcher.Constraint("Equal", 0, 1),
    Sketcher.Constraint("Equal", 1, 2),
    Sketcher.Constraint("Equal", 2, 3),
    Sketcher.Constraint("Equal", 3, 4),
    Sketcher.Constraint("Equal", 4, 5),
    Sketcher.Constraint("Equal", 5, 6),
    Sketcher.Constraint("Equal", 6, 7),
    Sketcher.Constraint("Equal", 9, 11),
    Sketcher.Constraint("Equal", 7, 12),
    Sketcher.Constraint("Equal", 12, 13),
    Sketcher.Constraint("Equal", 13, 14),
    Sketcher.Constraint("Equal", 14, 15),
    Sketcher.Constraint("Equal", 15, 16),
    Sketcher.Constraint("Equal", 16, 17),
    Sketcher.Constraint("Equal", 17, 18),
    Sketcher.Constraint("Equal", 18, 19),
    Sketcher.Constraint("Equal", 8, 20),
    Sketcher.Constraint("Equal", 11, 21),
    Sketcher.Constraint("Equal", 10, 22),
    Sketcher.Constraint("Equal", 21, 23),
    Sketcher.Constraint("Symmetric", 0, 3, 12, 3, -1, 1),
    Sketcher.Constraint("Symmetric", 2, 3, 14, 3, -1, 1),
    Sketcher.Constraint("Symmetric", 4, 3, 16, 3, -1, 1),
    Sketcher.Constraint("Symmetric", 6, 3, 18, 3, -1, 1),
    Sketcher.Constraint("Symmetric", 8, 3, 20, 3, -1, 1),
    Sketcher.Constraint("Symmetric", 10, 3, 22, 3, -1, 1),
    Sketcher.Constraint("Symmetric", 8, 3, 12, 3, -2),
    Sketcher.Constraint("Symmetric", 6, 2, 12, 2, -2),
    Sketcher.Constraint("Symmetric", 5, 1, 13, 1, -2),
    Sketcher.Constraint("Symmetric", 4, 2, 14, 2, -2),
    Sketcher.Constraint("PointOnObject", 3, 1, -1),
    Sketcher.Constraint("Horizontal", 9, 3, 11, 3),
    Sketcher.Constraint("Horizontal", 0, 3, 19, 3),
    Sketcher.Constraint("Horizontal", 21, 3, 23, 3),
    Sketcher.Constraint("Horizontal", 8, 2, 9, 1),
    Sketcher.Constraint("Horizontal", 7, 1, 11, 1),
    Sketcher.Constraint("Vertical", 11, 3, 12, 3),
    Sketcher.Constraint("Vertical", 10, 3, 21, 3),
    Sketcher.Constraint("DistanceX", 0, 2, -1, 1, 30.0),
    Sketcher.Constraint("DistanceY", -1, 1, 0, 2, 45.0),
    Sketcher.Constraint("DistanceY", 9, 3, 8, 3, 14.999999),
    Sketcher.Constraint("Radius", 8, 10.391321),
])
pad2 = body.newObject("PartDesign::Pad", "Pad001")
pad2.Profile = sketch5
pad2.Length = 30

doc.recompute()
